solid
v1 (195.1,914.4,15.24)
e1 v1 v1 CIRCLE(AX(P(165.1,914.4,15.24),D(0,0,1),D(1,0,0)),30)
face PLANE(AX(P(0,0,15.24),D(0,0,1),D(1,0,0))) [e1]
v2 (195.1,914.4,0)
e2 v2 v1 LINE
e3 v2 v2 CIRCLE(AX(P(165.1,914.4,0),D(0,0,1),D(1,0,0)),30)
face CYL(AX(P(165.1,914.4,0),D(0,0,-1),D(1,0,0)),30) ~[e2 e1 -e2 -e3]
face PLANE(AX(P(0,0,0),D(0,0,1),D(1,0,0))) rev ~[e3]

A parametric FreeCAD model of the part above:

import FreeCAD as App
import Part
import Sketcher
from FreeCAD import Vector
Q = App.Units.Quantity

doc = App.newDocument("Part")
body = doc.addObject("PartDesign::Body", "Body")

# Sketch on XY plane
sketch1 = doc.addObject("Sketcher::SketchObject", "Sketch")
body.addObject(sketch1)
sketch1.AttachmentSupport = (doc.XY_Plane, [""])
sketch1.MapMode = "FlatFace"
sketch1.addGeometry(Part.Circle(Vector(165.1, 914.4, 0), Vector(0, 0, 1), 30), False)
sketch1.addConstraint(Sketcher.Constraint("Diameter", 0, Q("2.3622 in")))
sketch1.addConstraint(Sketcher.Constraint("DistanceY", -1, 1, 0, 3, Q("36 in")))
sketch1.addConstraint(Sketcher.Constraint("DistanceX", -1, 1, 0, 3, Q("6.5 in")))
pad1 = doc.addObject("PartDesign::Pad", "Pad")
body.addObject(pad1)
pad1.Profile = sketch1
pad1.Length = Q("0.6 in")

doc.recompute()
